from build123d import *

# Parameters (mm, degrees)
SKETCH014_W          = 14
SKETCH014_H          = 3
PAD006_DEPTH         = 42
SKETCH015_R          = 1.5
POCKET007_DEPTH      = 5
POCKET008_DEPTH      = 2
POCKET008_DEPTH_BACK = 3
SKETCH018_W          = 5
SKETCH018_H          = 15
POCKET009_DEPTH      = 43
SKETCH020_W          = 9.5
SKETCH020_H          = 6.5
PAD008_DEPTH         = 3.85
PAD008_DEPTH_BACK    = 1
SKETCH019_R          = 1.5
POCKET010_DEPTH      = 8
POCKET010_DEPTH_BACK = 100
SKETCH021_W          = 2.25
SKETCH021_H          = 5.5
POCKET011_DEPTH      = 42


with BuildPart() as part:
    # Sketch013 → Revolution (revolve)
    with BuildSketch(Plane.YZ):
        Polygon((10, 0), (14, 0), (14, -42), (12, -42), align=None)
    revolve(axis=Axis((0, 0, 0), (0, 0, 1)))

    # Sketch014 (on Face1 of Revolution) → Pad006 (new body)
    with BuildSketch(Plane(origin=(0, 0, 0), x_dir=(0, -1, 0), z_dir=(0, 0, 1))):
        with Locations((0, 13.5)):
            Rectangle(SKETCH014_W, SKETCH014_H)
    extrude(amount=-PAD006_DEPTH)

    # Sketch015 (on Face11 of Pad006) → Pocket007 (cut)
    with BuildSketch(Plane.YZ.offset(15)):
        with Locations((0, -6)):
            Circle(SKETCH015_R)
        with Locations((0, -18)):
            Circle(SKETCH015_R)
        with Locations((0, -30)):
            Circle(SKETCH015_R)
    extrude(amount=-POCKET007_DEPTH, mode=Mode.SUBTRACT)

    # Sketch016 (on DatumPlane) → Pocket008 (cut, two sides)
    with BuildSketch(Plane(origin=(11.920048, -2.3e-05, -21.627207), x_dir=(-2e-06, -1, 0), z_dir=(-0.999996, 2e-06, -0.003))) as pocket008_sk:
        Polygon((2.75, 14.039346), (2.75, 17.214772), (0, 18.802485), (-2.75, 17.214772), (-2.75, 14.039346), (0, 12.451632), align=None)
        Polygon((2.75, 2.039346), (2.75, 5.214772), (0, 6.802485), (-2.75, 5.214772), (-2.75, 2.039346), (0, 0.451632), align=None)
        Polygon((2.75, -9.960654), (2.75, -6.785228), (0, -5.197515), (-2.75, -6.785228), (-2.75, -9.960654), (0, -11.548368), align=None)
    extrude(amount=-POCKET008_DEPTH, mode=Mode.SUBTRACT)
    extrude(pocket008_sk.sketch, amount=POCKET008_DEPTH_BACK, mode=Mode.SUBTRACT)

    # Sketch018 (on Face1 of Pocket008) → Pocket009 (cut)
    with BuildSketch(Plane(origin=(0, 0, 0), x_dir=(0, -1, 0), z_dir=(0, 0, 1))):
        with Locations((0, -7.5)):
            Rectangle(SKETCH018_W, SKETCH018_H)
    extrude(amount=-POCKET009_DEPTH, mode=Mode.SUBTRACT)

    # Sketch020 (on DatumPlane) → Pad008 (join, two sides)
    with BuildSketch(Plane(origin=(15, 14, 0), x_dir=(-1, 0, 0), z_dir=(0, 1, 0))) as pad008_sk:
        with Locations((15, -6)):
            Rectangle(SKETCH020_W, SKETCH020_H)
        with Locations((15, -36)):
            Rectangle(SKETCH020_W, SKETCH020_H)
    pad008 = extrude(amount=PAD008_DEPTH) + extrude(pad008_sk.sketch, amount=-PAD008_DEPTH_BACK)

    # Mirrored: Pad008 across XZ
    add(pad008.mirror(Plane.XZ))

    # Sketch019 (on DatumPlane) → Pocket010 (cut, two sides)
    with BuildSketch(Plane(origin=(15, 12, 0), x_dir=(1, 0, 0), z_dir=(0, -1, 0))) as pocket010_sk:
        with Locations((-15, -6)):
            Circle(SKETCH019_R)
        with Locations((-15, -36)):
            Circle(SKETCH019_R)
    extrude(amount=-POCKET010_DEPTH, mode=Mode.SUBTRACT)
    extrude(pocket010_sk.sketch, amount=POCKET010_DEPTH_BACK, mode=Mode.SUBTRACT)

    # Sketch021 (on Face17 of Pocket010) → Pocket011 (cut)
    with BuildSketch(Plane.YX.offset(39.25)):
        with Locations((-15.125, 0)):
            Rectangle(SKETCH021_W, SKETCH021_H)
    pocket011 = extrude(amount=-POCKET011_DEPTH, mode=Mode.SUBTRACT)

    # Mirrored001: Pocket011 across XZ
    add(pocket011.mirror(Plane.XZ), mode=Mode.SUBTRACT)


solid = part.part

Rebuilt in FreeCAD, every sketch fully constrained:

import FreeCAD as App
import Part
import Sketcher

V = App.Vector
Q = App.Units.Quantity


def add_polygon(sketch, points):
    """Adds a closed chain of lines whose ends are joined by coincident constraints."""
    first, n = sketch.GeometryCount, len(points)
    for a, b in zip(points, points[1:] + points[:1]):
        sketch.addGeometry(Part.LineSegment(App.Vector(*a, 0), App.Vector(*b, 0)), False)
    for i in range(n):
        sketch.addConstraint(Sketcher.Constraint("Coincident", first + i, 2, first + (i + 1) % n, 1))

doc = App.newDocument("Part")
params = doc.addObject("Spreadsheet::Sheet", "Params")
for row, (alias, value) in enumerate([
    ("sketch1_width", "4 mm"),
    ("sketch1_width2", "2 mm"),
    ("sketch1_height", "42 mm"),
    ("revolution_angle", "360 deg"),
    ("sketch2_width", "3 mm"),
    ("sketch2_height", "14 mm"),
    ("pad1_length", "42 mm"),
    ("sketch3_diameter", "3 mm"),
    ("pocket1_length", "5 mm"),
    ("pocket2_length", "2 mm"),
    ("pocket2_length2", "3 mm"),
    ("sketch5_width", "15 mm"),
    ("sketch5_height", "5 mm"),
    ("pocket3_length", "43 mm"),
    ("sketch6_width", "9.5 mm"),
    ("sketch6_height", "6.5 mm"),
    ("pad2_length", "3.85 mm"),
    ("pad2_length2", "1 mm"),
    ("sketch7_diameter", "3 mm"),
    ("sketch8_width", "5.5 mm"),
    ("sketch8_height", "2.25 mm"),
    ("pocket5_length", "42 mm"),
], start=1):
    params.set(f"A{row}", alias)
    params.set(f"B{row}", "=" + value)
    params.setAlias(f"B{row}", alias)

body = doc.addObject("PartDesign::Body", "Body")

sketch1 = body.newObject("Sketcher::SketchObject", "Sketch")
sketch1.AttachmentSupport = (doc.getObject("YZ_Plane"), [""])
sketch1.MapMode = "FlatFace"
add_polygon(sketch1, [(14, 0), (10, 0), (12, -42), (14, -42)])
sketch1.addConstraint([
    Sketcher.Constraint("Horizontal", 0),
    Sketcher.Constraint("Horizontal", 2),
    Sketcher.Constraint("Vertical", 3),
    Sketcher.Constraint("PointOnObject", 0, 2, -1),
    Sketcher.Constraint("DistanceX", 0, 2, 0, 1, 4.0),
    Sketcher.Constraint("DistanceX", 2, 1, 2, 2, 2.0),
    Sketcher.Constraint("DistanceY", 3, 1, 3, 2, 42.0),
    Sketcher.Constraint("DistanceX", -1, 1, 0, 2, 10.0),
])
sketch1.setExpression("Constraints[8]", "Params.sketch1_width")
sketch1.setExpression("Constraints[9]", "Params.sketch1_width2")
sketch1.setExpression("Constraints[10]", "Params.sketch1_height")
revolution = body.newObject("PartDesign::Revolution", "Revolution")
revolution.Profile = sketch1
revolution.ReferenceAxis = (sketch1, ["V_Axis"])
revolution.setExpression("Angle", "Params.revolution_angle")

sketch2 = body.newObject("Sketcher::SketchObject", "Sketch001")
sketch2.AttachmentSupport = (doc.getObject("XY_Plane"), [""])
sketch2.MapMode = "FlatFace"
add_polygon(sketch2, [(15, 7), (12, 7), (12, -7), (15, -7)])
sketch2.addConstraint([
    Sketcher.Constraint("Horizontal", 0),
    Sketcher.Constraint("Vertical", 1),
    Sketcher.Constraint("Horizontal", 2),
    Sketcher.Constraint("Vertical", 3),
    Sketcher.Constraint("DistanceX", 0, 2, 0, 1, 3.0),
    Sketcher.Constraint("DistanceY", 1, 2, 1, 1, 14.0),
    Sketcher.Constraint("DistanceX", -1, 1, 0, 2, 12.0),
    Sketcher.Constraint("DistanceY", -1, 1, 0, 2, 7.0),
])
sketch2.setExpression("Constraints[8]", "Params.sketch2_width")
sketch2.setExpression("Constraints[9]", "Params.sketch2_height")
pad1 = body.newObject("PartDesign::Pad", "Pad")
pad1.Profile = sketch2
pad1.setExpression("Length", "Params.pad1_length")
pad1.Reversed = True

sketch3 = body.newObject("Sketcher::SketchObject", "Sketch002")
sketch3.AttachmentSupport = (doc.getObject("YZ_Plane"), [""])
sketch3.MapMode = "FlatFace"
sketch3.AttachmentOffset = App.Placement(V(0, 0, 15), App.Rotation())
sketch3.addGeometry([
    Part.Circle(V(0, -6, 0), V(0, 0, 1), 1.5),
    Part.Circle(V(0, -18, 0), V(0, 0, 1), 1.5),
    Part.Circle(V(0, -30, 0), V(0, 0, 1), 1.5),
], False)
sketch3.addConstraint([
    Sketcher.Constraint("Equal", 0, 1),
    Sketcher.Constraint("Equal", 1, 2),
    Sketcher.Constraint("PointOnObject", 0, 3, -2),
    Sketcher.Constraint("PointOnObject", 1, 3, -2),
    Sketcher.Constraint("PointOnObject", 2, 3, -2),
    Sketcher.Constraint("Diameter", 0, 3.0),
    Sketcher.Constraint("DistanceY", 0, 3, -1, 1, 6.0),
    Sketcher.Constraint("DistanceY", 1, 3, -1, 1, 18.0),
    Sketcher.Constraint("DistanceY", 2, 3, -1, 1, 30.0),
])
sketch3.setExpression("Constraints[5]", "Params.sketch3_diameter")
pocket1 = body.newObject("PartDesign::Pocket", "Pocket")
pocket1.Profile = sketch3
pocket1.setExpression("Length", "Params.pocket1_length")

sketch4 = body.newObject("Sketcher::SketchObject", "Sketch003")
sketch4.Placement = App.Placement(V(11.920048, -0.000023, -21.627207), App.Rotation(V(-0.000002, -1, 0), V(-0.002999998, 0.000000006, 0.9999955), V(-0.9999955, 0.000002, -0.002999998), "ZXY"))
add_polygon(sketch4, [(2.75, 14.039346), (2.75, 17.214772), (0, 18.802485), (-2.75, 17.214772), (-2.75, 14.039346), (0, 12.451632)])
add_polygon(sketch4, [(2.75, 2.039346), (2.75, 5.214772), (0, 6.802485), (-2.75, 5.214772), (-2.75, 2.039346), (0, 0.451632)])
add_polygon(sketch4, [(2.75, -9.960654), (2.75, -6.785228), (0, -5.197515), (-2.75, -6.785228), (-2.75, -9.960654), (0, -11.548368)])
sketch4.addConstraint([
    Sketcher.Constraint("Vertical", 0),
    Sketcher.Constraint("Vertical", 3),
    Sketcher.Constraint("Vertical", 6),
    Sketcher.Constraint("Vertical", 9),
    Sketcher.Constraint("Vertical", 12),
    Sketcher.Constraint("Vertical", 15),
    Sketcher.Constraint("Symmetric", 0, 2, 2, 2, -2),
    Sketcher.Constraint("Symmetric", 6, 2, 8, 2, -2),
    Sketcher.Constraint("Symmetric", 12, 2, 14, 2, -2),
    Sketcher.Constraint("PointOnObject", 1, 2, -2),
    Sketcher.Constraint("PointOnObject", 4, 2, -2),
    Sketcher.Constraint("PointOnObject", 7, 2, -2),
    Sketcher.Constraint("PointOnObject", 10, 2, -2),
    Sketcher.Constraint("PointOnObject", 13, 2, -2),
    Sketcher.Constraint("PointOnObject", 16, 2, -2),
    Sketcher.Constraint("Parallel", 1, 4),
    Sketcher.Constraint("Parallel", 2, 5),
    Sketcher.Constraint("Parallel", 4, 7),
    Sketcher.Constraint("Parallel", 7, 10),
    Sketcher.Constraint("Parallel", 8, 11),
    Sketcher.Constraint("Parallel", 10, 13),
    Sketcher.Constraint("Parallel", 13, 16),
    Sketcher.Constraint("Parallel", 14, 17),
    Sketcher.Constraint("Vertical", 5, 2, 6, 2),
    Sketcher.Constraint("Vertical", 11, 2, 12, 2),
    Sketcher.Constraint("Equal", 3, 6),
    Sketcher.Constraint("Equal", 9, 12),
    Sketcher.Constraint("Angle", 1, Q("150.000004 deg")),
    Sketcher.Constraint("DistanceY", 6, 2, 0, 2, 12.0),
    Sketcher.Constraint("DistanceY", 12, 2, 6, 2, 12.0),
    Sketcher.Constraint("DistanceX", 2, 2, 0, 2, 5.5),
    Sketcher.Constraint("DistanceY", 0, 1, 0, 2, 3.175426),
    Sketcher.Constraint("DistanceY", -1, 1, 0, 2, 17.214772),
])
pocket2 = body.newObject("PartDesign::Pocket", "Pocket001")
pocket2.Profile = sketch4
pocket2.Type = "TwoLengths"
pocket2.setExpression("Length", "Params.pocket2_length")
pocket2.setExpression("Length2", "Params.pocket2_length2")

sketch5 = body.newObject("Sketcher::SketchObject", "Sketch004")
sketch5.AttachmentSupport = (doc.getObject("XY_Plane"), [""])
sketch5.MapMode = "FlatFace"
add_polygon(sketch5, [(0, 2.5), (-15, 2.5), (-15, -2.5), (0, -2.5)])
sketch5.addConstraint([
    Sketcher.Constraint("Horizontal", 0),
    Sketcher.Constraint("Vertical", 1),
    Sketcher.Constraint("Horizontal", 2),
    Sketcher.Constraint("Vertical", 3),
    Sketcher.Constraint("Symmetric", 2, 2, 3, 2, -1, 1),
    Sketcher.Constraint("DistanceX", 0, 2, 0, 1, 15.0),
    Sketcher.Constraint("DistanceY", 1, 2, 1, 1, 5.0),
])
sketch5.setExpression("Constraints[9]", "Params.sketch5_width")
sketch5.setExpression("Constraints[10]", "Params.sketch5_height")
pocket3 = body.newObject("PartDesign::Pocket", "Pocket002")
pocket3.Profile = sketch5
pocket3.setExpression("Length", "Params.pocket3_length")

sketch6 = body.newObject("Sketcher::SketchObject", "Sketch005")
sketch6.AttachmentSupport = (doc.getObject("XZ_Plane"), [""])
sketch6.MapMode = "FlatFace"
sketch6.AttachmentOffset = App.Placement(V(0, 0, -14), App.Rotation())
add_polygon(sketch6, [(4.75, -2.75), (4.75, -9.25), (-4.75, -9.25), (-4.75, -2.75)])
add_polygon(sketch6, [(4.75, -32.75), (4.75, -39.25), (-4.75, -39.25), (-4.75, -32.75)])
sketch6.addConstraint([
    Sketcher.Constraint("Vertical", 0),
    Sketcher.Constraint("Horizontal", 1),
    Sketcher.Constraint("Vertical", 2),
    Sketcher.Constraint("Horizontal", 3),
    Sketcher.Constraint("Vertical", 4),
    Sketcher.Constraint("Horizontal", 5),
    Sketcher.Constraint("Vertical", 6),
    Sketcher.Constraint("Horizontal", 7),
    Sketcher.Constraint("Vertical", 3, 2, 4, 2),
    Sketcher.Constraint("Vertical", 2, 2, 5, 2),
    Sketcher.Constraint("Equal", 2, 4),
    Sketcher.Constraint("DistanceX", 1, 2, 1, 1, 9.5),
    Sketcher.Constraint("DistanceY", 0, 2, 0, 1, 6.5),
    Sketcher.Constraint("DistanceY", 4, 2, 0, 2, 30.0),
    Sketcher.Constraint("DistanceX", -1, 1, 0, 2, 4.75),
    Sketcher.Constraint("DistanceY", 0, 2, -1, 1, 9.25),
])
sketch6.setExpression("Constraints[19]", "Params.sketch6_width")
sketch6.setExpression("Constraints[20]", "Params.sketch6_height")
pad2 = body.newObject("PartDesign::Pad", "Pad001")
pad2.Profile = sketch6
pad2.Type = "TwoLengths"
pad2.setExpression("Length", "Params.pad2_length")
pad2.setExpression("Length2", "Params.pad2_length2")
pad2.Reversed = True
doc.recompute()

mirrored = body.newObject("PartDesign::Mirrored", "Mirrored")
mirrored.Originals = [pad2]
mirrored.MirrorPlane = (doc.getObject("XZ_Plane"), [""])
body.Tip = mirrored

sketch7 = body.newObject("Sketcher::SketchObject", "Sketch006")
sketch7.AttachmentSupport = (doc.getObject("XZ_Plane"), [""])
sketch7.MapMode = "FlatFace"
sketch7.AttachmentOffset = App.Placement(V(0, 0, -12), App.Rotation())
sketch7.addGeometry([
    Part.Circle(V(0, -6, 0), V(0, 0, 1), 1.5),
    Part.Circle(V(0, -36, 0), V(0, 0, 1), 1.5),
], False)
sketch7.addConstraint([
    Sketcher.Constraint("Equal", 0, 1),
    Sketcher.Constraint("PointOnObject", 0, 3, -2),
    Sketcher.Constraint("PointOnObject", 1, 3, -2),
    Sketcher.Constraint("Diameter", 0, 3.0),
    Sketcher.Constraint("DistanceY", 0, 3, -1, 1, 6.0),
    Sketcher.Constraint("DistanceY", 1, 3, -1, 1, 36.0),
])
sketch7.setExpression("Constraints[3]", "Params.sketch7_diameter")
pocket4 = body.newObject("PartDesign::Pocket", "Pocket003")
pocket4.Profile = sketch7
pocket4.Type = "ThroughAll"
pocket4.Midplane = True

sketch8 = body.newObject("Sketcher::SketchObject", "Sketch007")
sketch8.AttachmentSupport = (doc.getObject("XY_Plane"), [""])
sketch8.MapMode = "FlatFace"
sketch8.AttachmentOffset = App.Placement(V(0, 0, -39.25), App.Rotation())
add_polygon(sketch8, [(2.75, -16.25), (-2.75, -16.25), (-2.75, -14), (2.75, -14)])
sketch8.addConstraint([
    Sketcher.Constraint("Horizontal", 0),
    Sketcher.Constraint("Vertical", 1),
    Sketcher.Constraint("Horizontal", 2),
    Sketcher.Constraint("Vertical", 3),
    Sketcher.Constraint("DistanceX", 0, 2, 0, 1, 5.5),
    Sketcher.Constraint("DistanceY", 1, 2, -1, 1, 14.0),
    Sketcher.Constraint("DistanceY", 1, 1, 1, 2, 2.25),
    Sketcher.Constraint("DistanceX", 0, 2, -1, 1, 2.75),
])
sketch8.setExpression("Constraints[8]", "Params.sketch8_width")
sketch8.setExpression("Constraints[10]", "Params.sketch8_height")
pocket5 = body.newObject("PartDesign::Pocket", "Pocket004")
pocket5.Profile = sketch8
pocket5.setExpression("Length", "Params.pocket5_length")
pocket5.Reversed = True
doc.recompute()

mirrored2 = body.newObject("PartDesign::Mirrored", "Mirrored001")
mirrored2.Originals = [pocket5]
mirrored2.MirrorPlane = (doc.getObject("XZ_Plane"), [""])
body.Tip = mirrored2

doc.recompute()
